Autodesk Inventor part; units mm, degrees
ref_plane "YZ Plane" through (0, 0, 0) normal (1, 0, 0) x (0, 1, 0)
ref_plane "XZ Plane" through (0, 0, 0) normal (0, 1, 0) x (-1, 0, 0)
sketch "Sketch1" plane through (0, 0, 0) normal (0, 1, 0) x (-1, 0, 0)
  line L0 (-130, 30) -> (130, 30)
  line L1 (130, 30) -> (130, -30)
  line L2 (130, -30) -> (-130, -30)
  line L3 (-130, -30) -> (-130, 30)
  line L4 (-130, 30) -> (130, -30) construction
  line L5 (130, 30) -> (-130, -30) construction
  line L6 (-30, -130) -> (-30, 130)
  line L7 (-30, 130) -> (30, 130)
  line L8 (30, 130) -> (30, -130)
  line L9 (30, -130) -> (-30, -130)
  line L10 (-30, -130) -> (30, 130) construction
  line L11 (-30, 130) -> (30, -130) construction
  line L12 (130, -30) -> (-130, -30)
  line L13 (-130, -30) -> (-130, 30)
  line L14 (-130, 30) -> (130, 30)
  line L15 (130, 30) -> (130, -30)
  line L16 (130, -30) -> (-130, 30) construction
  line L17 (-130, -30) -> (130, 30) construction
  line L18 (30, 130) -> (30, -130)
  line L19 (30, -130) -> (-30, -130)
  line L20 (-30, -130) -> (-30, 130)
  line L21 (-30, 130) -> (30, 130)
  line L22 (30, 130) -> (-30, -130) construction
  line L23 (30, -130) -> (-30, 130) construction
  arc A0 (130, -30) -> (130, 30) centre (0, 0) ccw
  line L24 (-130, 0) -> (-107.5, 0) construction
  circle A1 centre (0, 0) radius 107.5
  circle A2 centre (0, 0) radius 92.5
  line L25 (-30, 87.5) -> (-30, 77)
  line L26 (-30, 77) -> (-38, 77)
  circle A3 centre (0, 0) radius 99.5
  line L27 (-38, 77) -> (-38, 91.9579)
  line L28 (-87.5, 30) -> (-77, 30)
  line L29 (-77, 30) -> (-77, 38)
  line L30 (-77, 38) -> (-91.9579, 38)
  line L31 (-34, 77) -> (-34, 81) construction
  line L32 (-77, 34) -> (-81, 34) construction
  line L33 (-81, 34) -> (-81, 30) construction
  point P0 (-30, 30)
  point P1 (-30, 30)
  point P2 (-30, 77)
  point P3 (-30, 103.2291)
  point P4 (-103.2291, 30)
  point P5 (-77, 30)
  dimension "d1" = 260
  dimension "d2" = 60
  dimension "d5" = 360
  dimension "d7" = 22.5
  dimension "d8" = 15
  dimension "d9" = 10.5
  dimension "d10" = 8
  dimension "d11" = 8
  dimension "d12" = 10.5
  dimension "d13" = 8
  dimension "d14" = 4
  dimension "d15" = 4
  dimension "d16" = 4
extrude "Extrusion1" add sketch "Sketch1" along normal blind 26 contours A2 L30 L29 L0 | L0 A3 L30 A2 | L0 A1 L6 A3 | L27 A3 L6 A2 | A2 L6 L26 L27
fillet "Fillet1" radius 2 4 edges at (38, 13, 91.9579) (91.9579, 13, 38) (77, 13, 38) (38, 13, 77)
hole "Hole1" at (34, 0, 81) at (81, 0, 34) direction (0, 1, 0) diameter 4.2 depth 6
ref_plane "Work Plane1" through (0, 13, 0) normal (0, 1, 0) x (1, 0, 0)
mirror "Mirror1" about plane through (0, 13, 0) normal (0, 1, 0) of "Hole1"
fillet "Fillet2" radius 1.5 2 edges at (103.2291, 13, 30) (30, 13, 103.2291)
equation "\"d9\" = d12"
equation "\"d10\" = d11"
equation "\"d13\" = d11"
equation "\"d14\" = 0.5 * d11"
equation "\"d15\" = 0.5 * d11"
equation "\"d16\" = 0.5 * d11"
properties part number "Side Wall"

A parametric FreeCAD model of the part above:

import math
import FreeCAD as App
import Part
import Sketcher

V = App.Vector
Q = App.Units.Quantity


def edges_at(feature, points):
    """Names of the edges that pass closest to the given points."""
    edges = feature.Shape.Edges
    near = lambda p: min(range(len(edges)), key=lambda i: edges[i].distToShape(Part.Vertex(*p))[0])
    return sorted({f"Edge{near(p) + 1}" for p in points})

doc = App.newDocument("Part")
body = doc.addObject("PartDesign::Body", "Body")

sketch1 = doc.addObject("Sketcher::SketchObject", "Sketch")
body.addObject(sketch1)
sketch1.AttachmentSupport = (doc.XZ_Plane, [""])
sketch1.MapMode = "FlatFace"
sketch1.addGeometry([
    Part.LineSegment(V(77, 38, 0), V(91.9579, 38, 0)),
    Part.ArcOfCircle(Part.Circle(V(0, 0, 0), V(0, 0, 1), 99.5), math.radians(22.452008), math.radians(67.547992)),
    Part.LineSegment(V(38, 91.9579, 0), V(38, 77, 0)),
    Part.LineSegment(V(38, 77, 0), V(30, 77, 0)),
    Part.LineSegment(V(30, 77, 0), V(30, 103.229114, 0)),
    Part.ArcOfCircle(Part.Circle(V(0, 0, 0), V(0, 0, 1), 107.5), math.radians(16.204693), math.radians(73.795307)),
    Part.LineSegment(V(103.229114, 30, 0), V(77, 30, 0)),
    Part.LineSegment(V(77, 30, 0), V(77, 38, 0)),
], False)
sketch1.addConstraint([
    Sketcher.Constraint("Coincident", 0, 2, 1, 1),
    Sketcher.Constraint("Coincident", 1, 2, 2, 1),
    Sketcher.Constraint("Coincident", 2, 2, 3, 1),
    Sketcher.Constraint("Coincident", 3, 2, 4, 1),
    Sketcher.Constraint("Coincident", 4, 2, 5, 2),
    Sketcher.Constraint("Coincident", 5, 1, 6, 1),
    Sketcher.Constraint("Coincident", 6, 2, 7, 1),
    Sketcher.Constraint("Coincident", 7, 2, 0, 1),
    Sketcher.Constraint("Horizontal", 0),
    Sketcher.Constraint("Vertical", 2),
    Sketcher.Constraint("Horizontal", 3),
    Sketcher.Constraint("Vertical", 4),
    Sketcher.Constraint("Horizontal", 6),
    Sketcher.Constraint("Vertical", 7),
    Sketcher.Constraint("Coincident", 1, 3, -1, 1),
    Sketcher.Constraint("Coincident", 5, 3, -1, 1),
    Sketcher.Constraint("Equal", 0, 2),
    Sketcher.Constraint("Equal", 6, 4),
    Sketcher.Constraint("Equal", 3, 7),
    Sketcher.Constraint("DistanceX", 3, 2, 3, 1, Q("8 mm")),
    Sketcher.Constraint("Radius", 1, Q("99.5 mm")),
    Sketcher.Constraint("Radius", 5, Q("107.5 mm")),
    Sketcher.Constraint("DistanceY", -1, 1, 0, 2, Q("38 mm")),
    Sketcher.Constraint("DistanceY", -1, 1, 2, 2, Q("77 mm")),
])
pad1 = doc.addObject("PartDesign::Pad", "Pad")
body.addObject(pad1)
pad1.Profile = sketch1
pad1.Length = 26
pad1.Reversed = True
doc.recompute()

fillet = doc.addObject("PartDesign::Fillet", "Fillet")
body.addObject(fillet)
fillet.Base = (pad1, edges_at(pad1, [
    (38, 13, 91.958),
    (91.958, 13, 38),
    (77, 13, 38),
    (38, 13, 77),
]))
fillet.Radius = 2

sketch2 = doc.addObject("Sketcher::SketchObject", "Sketch001")
body.addObject(sketch2)
sketch2.AttachmentSupport = (doc.XZ_Plane, [""])
sketch2.MapMode = "FlatFace"
sketch2.addGeometry([
    Part.Circle(V(34, 81, 0), V(0, 0, 1), 2.1),
    Part.Circle(V(81, 34, 0), V(0, 0, 1), 2.1),
], False)
sketch2.addConstraint([
    Sketcher.Constraint("Equal", 0, 1),
    Sketcher.Constraint("Diameter", 0, Q("4.2 mm")),
    Sketcher.Constraint("DistanceX", -1, 1, 0, 3, Q("34 mm")),
    Sketcher.Constraint("DistanceY", -1, 1, 0, 3, Q("81 mm")),
    Sketcher.Constraint("DistanceX", -1, 1, 1, 3, Q("81 mm")),
    Sketcher.Constraint("DistanceY", -1, 1, 1, 3, Q("34 mm")),
])
doc.recompute()
hole = doc.addObject("PartDesign::Hole", "Hole")
body.addObject(hole)
hole.Profile = sketch2
hole.ThreadType = "None"
hole.Diameter = 4.2
hole.DepthType = "Dimension"
hole.Depth = 6
hole.DrillPoint = "Flat"
doc.recompute()

datumplane = doc.addObject("PartDesign::Plane", "DatumPlane")
body.addObject(datumplane)
datumplane.AttachmentSupport = (doc.XZ_Plane, [""])
datumplane.MapMode = "FlatFace"
datumplane.AttachmentOffset = App.Placement(V(0, 0, -13), App.Rotation())
mirrored = doc.addObject("PartDesign::Mirrored", "Mirrored")
body.addObject(mirrored)
mirrored.Originals = [hole]
mirrored.MirrorPlane = (datumplane, [""])
body.Tip = mirrored
doc.recompute()

fillet2 = doc.addObject("PartDesign::Fillet", "Fillet001")
body.addObject(fillet2)
fillet2.Base = (mirrored, edges_at(mirrored, [(103.229, 13, 30), (30, 13, 103.229)]))
fillet2.Radius = 1.5

doc.recompute()
